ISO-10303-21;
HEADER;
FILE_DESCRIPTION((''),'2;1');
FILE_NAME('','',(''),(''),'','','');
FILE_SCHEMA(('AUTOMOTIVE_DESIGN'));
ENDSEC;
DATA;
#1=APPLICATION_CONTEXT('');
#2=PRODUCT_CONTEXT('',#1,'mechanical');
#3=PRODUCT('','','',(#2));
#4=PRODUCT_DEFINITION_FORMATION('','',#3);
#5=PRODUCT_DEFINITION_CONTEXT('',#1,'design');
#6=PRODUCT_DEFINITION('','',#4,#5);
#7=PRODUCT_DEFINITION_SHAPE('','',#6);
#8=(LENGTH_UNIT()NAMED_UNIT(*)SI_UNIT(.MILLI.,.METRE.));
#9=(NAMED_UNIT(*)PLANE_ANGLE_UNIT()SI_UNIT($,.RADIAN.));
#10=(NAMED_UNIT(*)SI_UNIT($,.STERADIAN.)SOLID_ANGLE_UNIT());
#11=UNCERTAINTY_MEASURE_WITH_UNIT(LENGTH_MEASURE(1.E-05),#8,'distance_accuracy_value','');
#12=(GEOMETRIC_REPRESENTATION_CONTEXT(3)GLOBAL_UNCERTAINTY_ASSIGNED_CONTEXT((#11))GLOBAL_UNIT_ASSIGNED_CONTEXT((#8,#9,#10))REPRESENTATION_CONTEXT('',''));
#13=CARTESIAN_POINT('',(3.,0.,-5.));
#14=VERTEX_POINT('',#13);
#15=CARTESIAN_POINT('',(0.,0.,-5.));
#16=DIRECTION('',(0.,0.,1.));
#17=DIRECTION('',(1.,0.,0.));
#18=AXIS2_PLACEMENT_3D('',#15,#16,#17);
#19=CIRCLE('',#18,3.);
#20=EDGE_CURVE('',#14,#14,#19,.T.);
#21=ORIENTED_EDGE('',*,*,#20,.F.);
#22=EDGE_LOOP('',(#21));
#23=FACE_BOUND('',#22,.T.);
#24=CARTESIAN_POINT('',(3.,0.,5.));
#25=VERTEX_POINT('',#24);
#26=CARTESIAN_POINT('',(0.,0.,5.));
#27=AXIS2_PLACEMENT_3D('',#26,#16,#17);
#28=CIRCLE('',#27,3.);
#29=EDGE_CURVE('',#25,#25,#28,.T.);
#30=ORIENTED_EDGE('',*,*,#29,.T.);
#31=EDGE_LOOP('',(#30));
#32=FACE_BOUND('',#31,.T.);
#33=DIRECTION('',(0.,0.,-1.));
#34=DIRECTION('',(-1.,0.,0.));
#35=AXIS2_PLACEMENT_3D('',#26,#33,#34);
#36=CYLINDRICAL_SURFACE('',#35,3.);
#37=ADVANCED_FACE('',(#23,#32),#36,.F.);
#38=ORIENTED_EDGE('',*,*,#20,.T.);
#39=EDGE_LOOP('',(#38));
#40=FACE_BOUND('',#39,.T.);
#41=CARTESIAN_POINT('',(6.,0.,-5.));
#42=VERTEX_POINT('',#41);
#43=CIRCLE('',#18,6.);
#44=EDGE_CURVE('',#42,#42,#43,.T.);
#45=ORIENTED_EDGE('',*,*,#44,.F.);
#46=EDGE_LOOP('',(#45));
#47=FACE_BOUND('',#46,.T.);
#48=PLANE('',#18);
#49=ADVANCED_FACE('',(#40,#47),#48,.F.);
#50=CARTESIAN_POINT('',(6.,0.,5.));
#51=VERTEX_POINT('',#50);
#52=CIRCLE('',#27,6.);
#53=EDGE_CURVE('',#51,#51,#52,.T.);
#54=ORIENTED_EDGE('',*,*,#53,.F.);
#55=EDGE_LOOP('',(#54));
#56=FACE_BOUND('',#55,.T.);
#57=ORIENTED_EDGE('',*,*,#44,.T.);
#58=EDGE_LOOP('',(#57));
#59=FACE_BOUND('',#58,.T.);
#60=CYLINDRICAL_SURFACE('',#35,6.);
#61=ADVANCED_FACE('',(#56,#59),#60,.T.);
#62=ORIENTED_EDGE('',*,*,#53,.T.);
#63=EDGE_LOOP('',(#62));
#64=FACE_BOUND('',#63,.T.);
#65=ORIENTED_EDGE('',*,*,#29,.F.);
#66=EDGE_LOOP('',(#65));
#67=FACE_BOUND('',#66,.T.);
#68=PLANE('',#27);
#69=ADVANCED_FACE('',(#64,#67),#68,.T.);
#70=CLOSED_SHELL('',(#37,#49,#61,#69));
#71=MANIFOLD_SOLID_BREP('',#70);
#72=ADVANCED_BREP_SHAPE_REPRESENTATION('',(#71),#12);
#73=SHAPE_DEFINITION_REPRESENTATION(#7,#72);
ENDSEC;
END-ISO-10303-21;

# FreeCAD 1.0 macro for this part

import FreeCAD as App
import Part
import Sketcher

V = App.Vector
Q = App.Units.Quantity

doc = App.newDocument("Part")
body = doc.addObject("PartDesign::Body", "Body")

# Sketch on XY plane
sketch1 = doc.addObject("Sketcher::SketchObject", "Sketch")
body.addObject(sketch1)
sketch1.AttachmentSupport = (doc.XY_Plane, [""])
sketch1.MapMode = "FlatFace"
sketch1.addGeometry(Part.Circle(V(0, 0, 0), V(0, 0, 1), 6), False)
sketch1.addGeometry(Part.Circle(V(0, 0, 0), V(0, 0, 1), 3), False)
sketch1.addConstraint(Sketcher.Constraint("Coincident", 0, 3, -1, 1))
sketch1.addConstraint(Sketcher.Constraint("Coincident", 1, 3, -1, 1))
sketch1.addConstraint(Sketcher.Constraint("Diameter", 0, Q("12 mm")))
sketch1.addConstraint(Sketcher.Constraint("Diameter", 1, Q("6 mm")))
pad1 = doc.addObject("PartDesign::Pad", "Pad")
body.addObject(pad1)
pad1.Profile = sketch1
pad1.Length = 10
pad1.Midplane = True

doc.recompute()
